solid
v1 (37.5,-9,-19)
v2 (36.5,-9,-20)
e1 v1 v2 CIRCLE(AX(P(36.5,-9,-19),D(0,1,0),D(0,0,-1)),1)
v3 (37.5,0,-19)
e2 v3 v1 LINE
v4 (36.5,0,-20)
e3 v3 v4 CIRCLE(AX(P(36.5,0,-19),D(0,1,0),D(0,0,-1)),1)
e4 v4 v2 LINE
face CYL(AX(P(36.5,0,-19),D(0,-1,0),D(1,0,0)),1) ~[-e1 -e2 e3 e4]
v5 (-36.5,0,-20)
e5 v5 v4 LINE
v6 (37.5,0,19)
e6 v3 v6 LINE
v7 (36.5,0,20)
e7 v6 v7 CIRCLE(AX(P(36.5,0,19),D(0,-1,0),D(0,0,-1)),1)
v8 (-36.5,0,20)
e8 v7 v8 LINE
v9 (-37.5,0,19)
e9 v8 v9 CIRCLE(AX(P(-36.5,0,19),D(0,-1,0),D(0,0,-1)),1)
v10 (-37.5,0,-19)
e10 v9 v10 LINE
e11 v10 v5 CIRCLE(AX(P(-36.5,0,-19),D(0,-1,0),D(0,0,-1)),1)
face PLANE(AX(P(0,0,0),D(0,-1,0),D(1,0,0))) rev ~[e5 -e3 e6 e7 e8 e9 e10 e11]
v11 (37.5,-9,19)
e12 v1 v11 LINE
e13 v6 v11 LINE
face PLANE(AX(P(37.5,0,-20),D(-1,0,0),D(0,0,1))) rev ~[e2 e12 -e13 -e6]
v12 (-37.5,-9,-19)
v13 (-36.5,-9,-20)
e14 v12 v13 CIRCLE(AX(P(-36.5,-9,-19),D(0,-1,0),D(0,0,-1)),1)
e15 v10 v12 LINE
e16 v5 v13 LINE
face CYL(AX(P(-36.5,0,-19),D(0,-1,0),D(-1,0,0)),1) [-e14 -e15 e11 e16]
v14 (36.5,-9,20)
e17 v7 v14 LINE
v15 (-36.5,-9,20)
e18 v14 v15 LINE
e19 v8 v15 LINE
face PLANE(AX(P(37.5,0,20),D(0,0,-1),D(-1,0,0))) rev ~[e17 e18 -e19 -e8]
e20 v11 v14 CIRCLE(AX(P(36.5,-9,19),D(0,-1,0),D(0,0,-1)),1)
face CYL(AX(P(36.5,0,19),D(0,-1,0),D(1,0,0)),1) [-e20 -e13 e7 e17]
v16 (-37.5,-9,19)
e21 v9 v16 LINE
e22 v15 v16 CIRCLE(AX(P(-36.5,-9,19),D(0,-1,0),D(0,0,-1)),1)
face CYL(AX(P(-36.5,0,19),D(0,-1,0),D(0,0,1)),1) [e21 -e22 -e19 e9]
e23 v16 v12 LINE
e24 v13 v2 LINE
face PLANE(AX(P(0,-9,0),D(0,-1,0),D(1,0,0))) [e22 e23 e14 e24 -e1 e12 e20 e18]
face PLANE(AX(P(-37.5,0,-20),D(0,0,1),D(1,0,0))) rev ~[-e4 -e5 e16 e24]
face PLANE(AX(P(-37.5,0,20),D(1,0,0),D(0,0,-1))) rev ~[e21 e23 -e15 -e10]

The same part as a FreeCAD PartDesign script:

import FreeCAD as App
import Part
import Sketcher

V = App.Vector
Q = App.Units.Quantity


def edges_at(feature, points):
    """Names of the edges that pass closest to the given points."""
    edges = feature.Shape.Edges
    near = lambda p: min(range(len(edges)), key=lambda i: edges[i].distToShape(Part.Vertex(*p))[0])
    return sorted({f"Edge{near(p) + 1}" for p in points})

doc = App.newDocument("Part")
params = doc.addObject("Spreadsheet::Sheet", "Params")
for row, (alias, value) in enumerate([
    ("sketch1_width", "75 mm"),
    ("sketch1_height", "40 mm"),
    ("pad1_length", "9 mm"),
    ("fillet_radius", "1 mm"),
], start=1):
    params.set(f"A{row}", alias)
    params.set(f"B{row}", "=" + value)
    params.setAlias(f"B{row}", alias)

body = doc.addObject("PartDesign::Body", "Body")

sketch1 = body.newObject("Sketcher::SketchObject", "Sketch")
sketch1.AttachmentSupport = (doc.getObject("XZ_Plane"), [""])
sketch1.MapMode = "FlatFace"
sketch1.addGeometry([
    Part.LineSegment(V(38, -20, 0), V(38, 20, 0)),
    Part.LineSegment(V(38, 20, 0), V(-38, 20, 0)),
    Part.LineSegment(V(-38, 20, 0), V(-38, -20, 0)),
    Part.LineSegment(V(-38, -20, 0), V(38, -20, 0)),
], False)
sketch1.addConstraint([
    Sketcher.Constraint("Coincident", 0, 2, 1, 1),
    Sketcher.Constraint("Coincident", 1, 2, 2, 1),
    Sketcher.Constraint("Coincident", 2, 2, 3, 1),
    Sketcher.Constraint("Coincident", 3, 2, 0, 1),
    Sketcher.Constraint("Vertical", 0),
    Sketcher.Constraint("Horizontal", 1),
    Sketcher.Constraint("Vertical", 2),
    Sketcher.Constraint("Horizontal", 3),
    Sketcher.Constraint("Symmetric", 0, 2, 2, 2, -1, 1),
    Sketcher.Constraint("DistanceX", 1, 2, 1, 1, Q("75 mm")),
    Sketcher.Constraint("DistanceY", 0, 1, 0, 2, Q("40 mm")),
])
sketch1.setExpression("Constraints[9]", "Params.sketch1_width")
sketch1.setExpression("Constraints[10]", "Params.sketch1_height")
pad1 = body.newObject("PartDesign::Pad", "Pad")
pad1.Profile = sketch1
pad1.setExpression("Length", "Params.pad1_length")
doc.recompute()

fillet = body.newObject("PartDesign::Fillet", "Fillet")
fillet.Base = (pad1, edges_at(pad1, [
    (-37.5, -4.5, 20),
    (-37.5, -4.5, -20),
    (37.5, -4.5, 20),
    (37.5, -4.5, -20),
]))
fillet.setExpression("Radius", "Params.fillet_radius")

doc.recompute()
